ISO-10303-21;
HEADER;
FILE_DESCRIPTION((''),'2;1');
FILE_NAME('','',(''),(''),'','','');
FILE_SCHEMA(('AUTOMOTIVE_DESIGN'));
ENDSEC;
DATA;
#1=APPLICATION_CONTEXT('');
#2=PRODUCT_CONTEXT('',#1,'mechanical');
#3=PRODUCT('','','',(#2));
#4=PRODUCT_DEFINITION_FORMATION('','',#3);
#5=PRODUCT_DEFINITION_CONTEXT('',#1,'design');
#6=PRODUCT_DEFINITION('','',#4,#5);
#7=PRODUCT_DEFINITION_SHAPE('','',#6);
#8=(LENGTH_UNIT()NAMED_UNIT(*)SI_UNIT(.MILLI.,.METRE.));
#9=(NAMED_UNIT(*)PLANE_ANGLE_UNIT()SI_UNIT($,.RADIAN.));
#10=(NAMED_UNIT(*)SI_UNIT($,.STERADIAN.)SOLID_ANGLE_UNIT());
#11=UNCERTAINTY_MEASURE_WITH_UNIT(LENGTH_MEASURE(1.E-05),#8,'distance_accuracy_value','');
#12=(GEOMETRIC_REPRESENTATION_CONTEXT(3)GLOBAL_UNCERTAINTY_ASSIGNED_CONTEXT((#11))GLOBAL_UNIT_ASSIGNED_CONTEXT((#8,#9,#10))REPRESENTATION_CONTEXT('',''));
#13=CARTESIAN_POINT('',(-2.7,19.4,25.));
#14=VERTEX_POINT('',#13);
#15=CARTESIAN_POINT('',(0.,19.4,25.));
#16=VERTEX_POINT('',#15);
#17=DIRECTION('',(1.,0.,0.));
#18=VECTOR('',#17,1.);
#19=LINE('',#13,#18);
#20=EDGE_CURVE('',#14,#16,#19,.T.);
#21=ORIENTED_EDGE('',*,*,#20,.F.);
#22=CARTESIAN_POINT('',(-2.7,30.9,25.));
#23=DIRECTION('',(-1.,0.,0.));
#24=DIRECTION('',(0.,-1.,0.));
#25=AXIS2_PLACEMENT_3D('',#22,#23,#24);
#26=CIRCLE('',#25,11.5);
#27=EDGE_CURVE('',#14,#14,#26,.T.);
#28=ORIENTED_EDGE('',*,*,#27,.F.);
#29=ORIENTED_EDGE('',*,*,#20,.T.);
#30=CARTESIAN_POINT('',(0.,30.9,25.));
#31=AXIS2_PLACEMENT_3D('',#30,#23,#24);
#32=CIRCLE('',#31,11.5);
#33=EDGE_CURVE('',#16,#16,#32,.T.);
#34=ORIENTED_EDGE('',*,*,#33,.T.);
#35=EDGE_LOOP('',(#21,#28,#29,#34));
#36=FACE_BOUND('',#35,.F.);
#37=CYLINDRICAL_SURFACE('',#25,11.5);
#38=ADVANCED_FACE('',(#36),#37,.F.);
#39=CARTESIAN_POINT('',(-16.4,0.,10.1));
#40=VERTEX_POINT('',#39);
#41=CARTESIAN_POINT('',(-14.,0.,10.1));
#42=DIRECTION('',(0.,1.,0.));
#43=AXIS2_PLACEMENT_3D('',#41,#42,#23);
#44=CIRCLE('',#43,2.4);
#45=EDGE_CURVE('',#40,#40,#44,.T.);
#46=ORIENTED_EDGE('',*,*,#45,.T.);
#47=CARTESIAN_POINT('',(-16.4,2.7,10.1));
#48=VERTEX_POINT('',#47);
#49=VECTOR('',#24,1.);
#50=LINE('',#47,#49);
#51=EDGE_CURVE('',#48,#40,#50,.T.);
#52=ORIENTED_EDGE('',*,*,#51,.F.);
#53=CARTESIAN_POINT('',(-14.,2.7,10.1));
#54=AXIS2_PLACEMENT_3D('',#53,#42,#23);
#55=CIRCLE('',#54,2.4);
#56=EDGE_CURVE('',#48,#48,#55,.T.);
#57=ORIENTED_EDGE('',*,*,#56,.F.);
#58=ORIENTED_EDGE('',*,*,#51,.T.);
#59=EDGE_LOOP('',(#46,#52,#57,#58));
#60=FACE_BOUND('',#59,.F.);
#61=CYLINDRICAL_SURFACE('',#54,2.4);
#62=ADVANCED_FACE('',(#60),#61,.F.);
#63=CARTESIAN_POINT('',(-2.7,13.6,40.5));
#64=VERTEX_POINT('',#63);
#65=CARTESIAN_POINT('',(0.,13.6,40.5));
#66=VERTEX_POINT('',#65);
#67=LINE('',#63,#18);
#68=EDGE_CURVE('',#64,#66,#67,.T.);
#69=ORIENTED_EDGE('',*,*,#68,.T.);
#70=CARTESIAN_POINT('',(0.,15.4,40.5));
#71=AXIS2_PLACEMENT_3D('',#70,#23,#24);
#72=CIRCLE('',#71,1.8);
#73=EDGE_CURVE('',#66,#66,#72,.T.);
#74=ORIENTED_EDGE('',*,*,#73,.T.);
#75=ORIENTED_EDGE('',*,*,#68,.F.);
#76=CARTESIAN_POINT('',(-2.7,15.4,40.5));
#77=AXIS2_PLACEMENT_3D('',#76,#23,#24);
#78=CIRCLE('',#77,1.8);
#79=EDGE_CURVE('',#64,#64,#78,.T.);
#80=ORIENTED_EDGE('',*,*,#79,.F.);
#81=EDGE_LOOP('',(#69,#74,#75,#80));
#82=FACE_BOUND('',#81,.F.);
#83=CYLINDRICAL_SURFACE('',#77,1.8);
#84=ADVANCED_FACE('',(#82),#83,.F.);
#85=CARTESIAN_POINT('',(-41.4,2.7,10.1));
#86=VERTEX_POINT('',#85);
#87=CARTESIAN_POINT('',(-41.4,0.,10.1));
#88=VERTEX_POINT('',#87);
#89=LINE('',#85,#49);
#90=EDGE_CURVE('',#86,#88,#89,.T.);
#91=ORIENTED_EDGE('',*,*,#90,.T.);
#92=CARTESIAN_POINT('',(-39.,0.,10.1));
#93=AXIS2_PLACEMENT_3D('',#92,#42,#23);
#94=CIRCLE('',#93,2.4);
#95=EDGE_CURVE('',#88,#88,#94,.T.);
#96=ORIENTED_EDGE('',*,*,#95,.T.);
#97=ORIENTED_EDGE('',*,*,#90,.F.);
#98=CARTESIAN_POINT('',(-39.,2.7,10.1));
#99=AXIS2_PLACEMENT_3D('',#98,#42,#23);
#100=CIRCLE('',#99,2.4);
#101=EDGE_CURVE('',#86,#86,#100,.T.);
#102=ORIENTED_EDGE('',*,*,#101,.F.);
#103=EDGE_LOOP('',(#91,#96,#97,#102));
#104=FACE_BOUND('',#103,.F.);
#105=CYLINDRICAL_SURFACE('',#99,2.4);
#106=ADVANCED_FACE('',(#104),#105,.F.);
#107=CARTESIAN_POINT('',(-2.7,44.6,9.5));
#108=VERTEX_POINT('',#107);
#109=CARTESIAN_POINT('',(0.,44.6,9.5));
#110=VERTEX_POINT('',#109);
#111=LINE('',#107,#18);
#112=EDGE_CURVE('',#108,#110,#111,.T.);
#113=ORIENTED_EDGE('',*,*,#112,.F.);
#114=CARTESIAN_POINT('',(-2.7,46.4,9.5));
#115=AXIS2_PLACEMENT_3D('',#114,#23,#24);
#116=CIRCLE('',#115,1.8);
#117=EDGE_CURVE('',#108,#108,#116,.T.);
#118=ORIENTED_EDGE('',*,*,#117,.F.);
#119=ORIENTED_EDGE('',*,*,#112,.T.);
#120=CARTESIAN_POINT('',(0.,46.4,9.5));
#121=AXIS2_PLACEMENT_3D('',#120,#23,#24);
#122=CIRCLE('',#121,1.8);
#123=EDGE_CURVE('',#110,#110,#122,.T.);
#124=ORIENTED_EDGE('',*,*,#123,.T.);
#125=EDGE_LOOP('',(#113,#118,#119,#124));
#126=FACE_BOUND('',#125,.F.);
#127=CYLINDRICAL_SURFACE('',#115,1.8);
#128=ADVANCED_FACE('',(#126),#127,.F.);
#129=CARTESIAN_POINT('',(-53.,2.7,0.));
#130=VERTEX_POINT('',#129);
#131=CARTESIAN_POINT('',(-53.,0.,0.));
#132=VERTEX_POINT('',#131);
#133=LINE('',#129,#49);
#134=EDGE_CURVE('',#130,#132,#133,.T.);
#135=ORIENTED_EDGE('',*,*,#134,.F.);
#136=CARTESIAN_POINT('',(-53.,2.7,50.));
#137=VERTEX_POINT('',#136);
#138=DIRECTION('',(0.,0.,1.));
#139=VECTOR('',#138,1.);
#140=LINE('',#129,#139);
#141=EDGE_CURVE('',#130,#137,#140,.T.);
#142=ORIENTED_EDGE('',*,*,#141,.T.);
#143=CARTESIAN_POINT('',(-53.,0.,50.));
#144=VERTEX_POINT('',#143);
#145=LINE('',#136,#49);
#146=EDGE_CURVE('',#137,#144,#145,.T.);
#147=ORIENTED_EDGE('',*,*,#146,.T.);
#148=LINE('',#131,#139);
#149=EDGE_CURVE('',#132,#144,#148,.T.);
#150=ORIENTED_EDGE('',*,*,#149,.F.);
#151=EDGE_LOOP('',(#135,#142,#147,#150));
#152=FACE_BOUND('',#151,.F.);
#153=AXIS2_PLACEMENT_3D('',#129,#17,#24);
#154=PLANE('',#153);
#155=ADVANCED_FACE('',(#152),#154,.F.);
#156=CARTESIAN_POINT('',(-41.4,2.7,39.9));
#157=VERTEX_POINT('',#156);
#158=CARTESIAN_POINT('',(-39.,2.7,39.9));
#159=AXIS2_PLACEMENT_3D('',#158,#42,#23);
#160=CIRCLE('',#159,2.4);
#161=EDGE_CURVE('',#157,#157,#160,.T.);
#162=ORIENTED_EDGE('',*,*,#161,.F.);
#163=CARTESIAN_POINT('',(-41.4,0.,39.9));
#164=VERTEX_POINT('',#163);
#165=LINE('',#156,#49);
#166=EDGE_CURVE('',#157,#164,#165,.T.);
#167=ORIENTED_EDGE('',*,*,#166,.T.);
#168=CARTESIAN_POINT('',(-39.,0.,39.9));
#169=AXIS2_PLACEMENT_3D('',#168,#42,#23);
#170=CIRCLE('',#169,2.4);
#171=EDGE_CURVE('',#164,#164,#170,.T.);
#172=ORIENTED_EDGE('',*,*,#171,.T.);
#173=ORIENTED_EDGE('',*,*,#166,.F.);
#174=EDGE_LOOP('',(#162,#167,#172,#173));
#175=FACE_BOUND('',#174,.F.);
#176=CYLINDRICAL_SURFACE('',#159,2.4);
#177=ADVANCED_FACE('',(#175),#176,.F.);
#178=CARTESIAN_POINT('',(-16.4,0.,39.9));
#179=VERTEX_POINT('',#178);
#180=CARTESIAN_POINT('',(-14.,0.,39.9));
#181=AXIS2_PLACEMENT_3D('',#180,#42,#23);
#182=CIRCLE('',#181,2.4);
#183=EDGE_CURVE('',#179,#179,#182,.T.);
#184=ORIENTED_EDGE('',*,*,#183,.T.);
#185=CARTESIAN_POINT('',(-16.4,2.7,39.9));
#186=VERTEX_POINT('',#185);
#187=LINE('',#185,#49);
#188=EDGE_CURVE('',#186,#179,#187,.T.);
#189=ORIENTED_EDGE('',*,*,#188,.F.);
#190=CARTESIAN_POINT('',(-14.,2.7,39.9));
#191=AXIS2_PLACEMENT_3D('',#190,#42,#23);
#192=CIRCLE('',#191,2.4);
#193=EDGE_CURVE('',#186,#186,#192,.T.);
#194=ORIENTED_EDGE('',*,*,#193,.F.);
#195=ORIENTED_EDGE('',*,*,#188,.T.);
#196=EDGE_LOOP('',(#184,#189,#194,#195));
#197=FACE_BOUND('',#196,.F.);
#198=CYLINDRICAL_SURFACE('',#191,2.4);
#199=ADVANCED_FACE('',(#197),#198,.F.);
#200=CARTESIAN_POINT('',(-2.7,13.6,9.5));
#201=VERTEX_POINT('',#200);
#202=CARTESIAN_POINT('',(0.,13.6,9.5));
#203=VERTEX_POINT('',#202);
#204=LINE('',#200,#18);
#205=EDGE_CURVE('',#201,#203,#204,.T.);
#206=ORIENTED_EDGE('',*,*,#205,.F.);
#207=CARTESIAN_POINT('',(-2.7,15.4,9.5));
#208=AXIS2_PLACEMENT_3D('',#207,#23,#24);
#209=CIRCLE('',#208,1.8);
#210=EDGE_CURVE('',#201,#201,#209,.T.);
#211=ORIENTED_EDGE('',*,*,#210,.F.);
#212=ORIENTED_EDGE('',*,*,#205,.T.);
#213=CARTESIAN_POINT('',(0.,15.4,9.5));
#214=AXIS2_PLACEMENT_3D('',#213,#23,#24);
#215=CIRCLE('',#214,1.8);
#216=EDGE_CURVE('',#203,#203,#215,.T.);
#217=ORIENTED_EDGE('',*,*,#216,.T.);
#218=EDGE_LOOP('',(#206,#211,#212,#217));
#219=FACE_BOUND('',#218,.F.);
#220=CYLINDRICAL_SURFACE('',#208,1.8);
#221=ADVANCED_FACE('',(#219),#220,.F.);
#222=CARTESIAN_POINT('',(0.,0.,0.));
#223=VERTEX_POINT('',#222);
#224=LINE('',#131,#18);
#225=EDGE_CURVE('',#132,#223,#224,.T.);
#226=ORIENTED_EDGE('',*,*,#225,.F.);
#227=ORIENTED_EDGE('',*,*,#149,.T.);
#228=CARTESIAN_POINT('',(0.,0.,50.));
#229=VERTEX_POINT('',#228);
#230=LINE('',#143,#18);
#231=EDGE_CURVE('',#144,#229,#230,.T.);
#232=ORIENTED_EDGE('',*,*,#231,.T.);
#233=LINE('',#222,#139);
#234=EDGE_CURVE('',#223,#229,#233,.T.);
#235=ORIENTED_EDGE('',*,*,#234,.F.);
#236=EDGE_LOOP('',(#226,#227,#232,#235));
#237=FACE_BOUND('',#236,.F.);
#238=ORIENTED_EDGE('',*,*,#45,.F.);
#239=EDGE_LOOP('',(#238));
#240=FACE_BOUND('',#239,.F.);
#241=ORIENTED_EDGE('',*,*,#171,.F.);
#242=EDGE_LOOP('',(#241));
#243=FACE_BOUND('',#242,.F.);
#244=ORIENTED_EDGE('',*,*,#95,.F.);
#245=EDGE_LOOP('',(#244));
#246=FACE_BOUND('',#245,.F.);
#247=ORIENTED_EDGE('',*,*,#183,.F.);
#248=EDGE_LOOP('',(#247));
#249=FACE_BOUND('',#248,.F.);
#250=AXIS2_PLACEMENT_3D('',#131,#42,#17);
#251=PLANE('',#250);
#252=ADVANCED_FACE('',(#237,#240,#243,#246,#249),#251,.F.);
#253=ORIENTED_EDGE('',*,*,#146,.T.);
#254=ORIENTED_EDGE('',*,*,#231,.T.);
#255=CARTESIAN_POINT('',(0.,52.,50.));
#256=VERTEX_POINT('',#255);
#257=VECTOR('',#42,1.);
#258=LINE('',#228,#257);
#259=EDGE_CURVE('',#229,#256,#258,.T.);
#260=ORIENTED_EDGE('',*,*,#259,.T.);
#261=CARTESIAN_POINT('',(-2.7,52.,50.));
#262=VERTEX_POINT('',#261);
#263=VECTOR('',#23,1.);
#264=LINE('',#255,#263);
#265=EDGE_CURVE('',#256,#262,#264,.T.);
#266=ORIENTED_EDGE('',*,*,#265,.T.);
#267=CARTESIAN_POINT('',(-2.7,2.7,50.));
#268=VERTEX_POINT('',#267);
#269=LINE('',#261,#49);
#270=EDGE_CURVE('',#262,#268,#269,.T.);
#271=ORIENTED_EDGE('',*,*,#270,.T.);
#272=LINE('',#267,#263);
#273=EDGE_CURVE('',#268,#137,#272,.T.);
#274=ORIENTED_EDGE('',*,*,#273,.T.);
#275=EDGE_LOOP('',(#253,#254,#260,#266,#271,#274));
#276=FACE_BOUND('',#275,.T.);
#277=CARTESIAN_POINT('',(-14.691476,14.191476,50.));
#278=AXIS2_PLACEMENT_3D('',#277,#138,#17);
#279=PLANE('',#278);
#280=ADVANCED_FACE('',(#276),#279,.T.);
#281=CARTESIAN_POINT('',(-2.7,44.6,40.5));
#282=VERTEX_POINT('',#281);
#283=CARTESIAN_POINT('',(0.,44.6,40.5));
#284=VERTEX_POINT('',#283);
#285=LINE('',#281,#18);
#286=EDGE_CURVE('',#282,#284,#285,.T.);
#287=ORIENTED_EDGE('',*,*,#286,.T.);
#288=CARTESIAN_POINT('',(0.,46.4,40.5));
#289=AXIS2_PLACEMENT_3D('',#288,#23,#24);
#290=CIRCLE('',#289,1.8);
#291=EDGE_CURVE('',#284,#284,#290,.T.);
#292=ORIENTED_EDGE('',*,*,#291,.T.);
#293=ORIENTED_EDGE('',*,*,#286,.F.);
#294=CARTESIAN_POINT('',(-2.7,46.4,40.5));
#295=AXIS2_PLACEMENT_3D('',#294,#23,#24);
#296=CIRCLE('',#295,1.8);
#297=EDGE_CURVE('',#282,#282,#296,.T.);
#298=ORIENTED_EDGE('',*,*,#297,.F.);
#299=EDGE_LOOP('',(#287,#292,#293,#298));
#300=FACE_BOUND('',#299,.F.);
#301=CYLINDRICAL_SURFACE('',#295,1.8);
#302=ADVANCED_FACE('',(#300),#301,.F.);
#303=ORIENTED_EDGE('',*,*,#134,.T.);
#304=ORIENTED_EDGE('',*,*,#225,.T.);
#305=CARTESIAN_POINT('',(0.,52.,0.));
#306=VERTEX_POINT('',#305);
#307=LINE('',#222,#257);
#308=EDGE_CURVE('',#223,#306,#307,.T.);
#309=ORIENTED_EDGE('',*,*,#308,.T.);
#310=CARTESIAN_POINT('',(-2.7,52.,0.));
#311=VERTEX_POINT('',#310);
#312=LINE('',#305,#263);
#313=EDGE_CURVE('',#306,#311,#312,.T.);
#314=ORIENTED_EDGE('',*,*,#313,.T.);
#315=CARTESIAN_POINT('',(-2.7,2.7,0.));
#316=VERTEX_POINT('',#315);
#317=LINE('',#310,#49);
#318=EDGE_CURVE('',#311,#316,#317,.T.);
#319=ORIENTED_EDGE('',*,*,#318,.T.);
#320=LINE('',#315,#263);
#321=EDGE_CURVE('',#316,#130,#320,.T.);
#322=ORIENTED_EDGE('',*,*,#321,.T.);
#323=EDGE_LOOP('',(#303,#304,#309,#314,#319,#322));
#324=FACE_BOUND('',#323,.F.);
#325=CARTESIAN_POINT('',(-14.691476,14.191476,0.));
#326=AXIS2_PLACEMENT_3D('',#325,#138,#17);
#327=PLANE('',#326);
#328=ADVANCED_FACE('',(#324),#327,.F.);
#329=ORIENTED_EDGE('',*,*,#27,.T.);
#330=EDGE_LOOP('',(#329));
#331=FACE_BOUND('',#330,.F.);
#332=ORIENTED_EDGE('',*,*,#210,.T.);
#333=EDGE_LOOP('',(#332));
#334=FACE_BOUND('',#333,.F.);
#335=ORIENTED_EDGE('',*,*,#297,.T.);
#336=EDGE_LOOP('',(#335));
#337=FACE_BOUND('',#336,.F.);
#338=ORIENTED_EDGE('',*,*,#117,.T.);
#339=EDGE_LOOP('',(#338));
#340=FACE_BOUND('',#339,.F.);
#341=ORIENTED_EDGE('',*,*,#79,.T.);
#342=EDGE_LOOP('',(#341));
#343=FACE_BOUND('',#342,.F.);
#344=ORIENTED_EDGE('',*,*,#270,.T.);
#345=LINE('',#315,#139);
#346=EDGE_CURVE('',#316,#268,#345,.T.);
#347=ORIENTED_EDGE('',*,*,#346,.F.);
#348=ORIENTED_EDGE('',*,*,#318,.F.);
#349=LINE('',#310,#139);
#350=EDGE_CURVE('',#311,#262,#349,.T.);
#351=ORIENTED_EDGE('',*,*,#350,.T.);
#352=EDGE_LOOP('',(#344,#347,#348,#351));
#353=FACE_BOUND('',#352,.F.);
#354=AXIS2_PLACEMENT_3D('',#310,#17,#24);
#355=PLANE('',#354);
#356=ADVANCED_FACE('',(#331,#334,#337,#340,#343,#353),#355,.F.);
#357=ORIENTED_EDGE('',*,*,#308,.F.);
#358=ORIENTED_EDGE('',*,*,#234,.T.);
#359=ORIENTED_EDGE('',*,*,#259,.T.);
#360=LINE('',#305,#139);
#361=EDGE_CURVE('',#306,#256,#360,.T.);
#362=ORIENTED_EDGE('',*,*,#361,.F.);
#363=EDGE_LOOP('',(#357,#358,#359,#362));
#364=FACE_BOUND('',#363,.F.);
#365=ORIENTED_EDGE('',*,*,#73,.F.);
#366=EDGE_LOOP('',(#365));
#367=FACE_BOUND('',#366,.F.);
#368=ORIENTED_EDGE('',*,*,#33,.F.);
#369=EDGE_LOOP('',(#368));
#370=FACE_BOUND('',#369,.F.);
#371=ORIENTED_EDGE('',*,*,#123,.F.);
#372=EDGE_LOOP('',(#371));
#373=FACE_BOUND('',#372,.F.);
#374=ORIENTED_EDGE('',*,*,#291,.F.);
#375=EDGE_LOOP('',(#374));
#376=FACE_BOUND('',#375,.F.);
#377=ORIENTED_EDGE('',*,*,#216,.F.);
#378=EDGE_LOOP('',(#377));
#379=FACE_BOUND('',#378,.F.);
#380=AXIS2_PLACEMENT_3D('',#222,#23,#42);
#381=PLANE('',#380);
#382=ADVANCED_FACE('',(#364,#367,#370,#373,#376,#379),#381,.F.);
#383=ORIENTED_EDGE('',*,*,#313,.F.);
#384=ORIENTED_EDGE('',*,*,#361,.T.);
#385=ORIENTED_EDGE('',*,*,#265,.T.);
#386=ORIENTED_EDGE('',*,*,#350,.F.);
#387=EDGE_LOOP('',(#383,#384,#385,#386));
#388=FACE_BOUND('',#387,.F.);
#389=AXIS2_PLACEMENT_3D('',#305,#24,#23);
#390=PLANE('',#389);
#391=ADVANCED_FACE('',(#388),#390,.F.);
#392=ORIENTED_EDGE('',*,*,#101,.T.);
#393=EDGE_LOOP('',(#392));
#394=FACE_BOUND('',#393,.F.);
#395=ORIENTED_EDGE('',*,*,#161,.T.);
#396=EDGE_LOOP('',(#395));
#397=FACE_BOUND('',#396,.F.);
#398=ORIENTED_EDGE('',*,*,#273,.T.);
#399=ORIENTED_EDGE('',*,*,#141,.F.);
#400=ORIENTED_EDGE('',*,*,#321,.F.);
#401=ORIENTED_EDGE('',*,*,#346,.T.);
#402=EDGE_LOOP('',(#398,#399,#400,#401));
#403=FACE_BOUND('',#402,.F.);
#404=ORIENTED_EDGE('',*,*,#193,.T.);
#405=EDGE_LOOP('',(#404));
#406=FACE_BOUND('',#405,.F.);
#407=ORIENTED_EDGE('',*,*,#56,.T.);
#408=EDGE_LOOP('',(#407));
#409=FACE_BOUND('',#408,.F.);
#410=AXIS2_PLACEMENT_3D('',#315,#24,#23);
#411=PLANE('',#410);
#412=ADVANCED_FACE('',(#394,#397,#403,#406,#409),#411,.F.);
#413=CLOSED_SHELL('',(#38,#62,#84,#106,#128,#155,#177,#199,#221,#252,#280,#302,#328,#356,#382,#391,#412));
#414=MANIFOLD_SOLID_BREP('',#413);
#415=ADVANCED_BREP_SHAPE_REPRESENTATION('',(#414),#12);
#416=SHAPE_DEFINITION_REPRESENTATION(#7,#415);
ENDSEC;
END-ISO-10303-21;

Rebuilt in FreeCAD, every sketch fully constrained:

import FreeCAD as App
import Part
import Sketcher
Q = App.Units.Quantity


def add_polygon(sketch, points):
    """Adds a closed chain of lines whose ends are joined by coincident constraints."""
    first, n = sketch.GeometryCount, len(points)
    for a, b in zip(points, points[1:] + points[:1]):
        sketch.addGeometry(Part.LineSegment(App.Vector(*a, 0), App.Vector(*b, 0)), False)
    for i in range(n):
        sketch.addConstraint(Sketcher.Constraint("Coincident", first + i, 2, first + (i + 1) % n, 1))

doc = App.newDocument("Part")
body = doc.addObject("PartDesign::Body", "Body")

sketch1 = body.newObject("Sketcher::SketchObject", "Sketch")
sketch1.AttachmentSupport = (doc.getObject("XY_Plane"), [""])
sketch1.MapMode = "FlatFace"
add_polygon(sketch1, [(-2.7, 2.7), (-53, 2.7), (-53, 0), (0, 0), (0, 52), (-2.7, 52)])
sketch1.addConstraint([
    Sketcher.Constraint("Horizontal", 0),
    Sketcher.Constraint("Vertical", 1),
    Sketcher.Constraint("Horizontal", 2),
    Sketcher.Constraint("Vertical", 3),
    Sketcher.Constraint("Horizontal", 4),
    Sketcher.Constraint("Vertical", 5),
    Sketcher.Constraint("Coincident", 2, 2, -1, 1),
    Sketcher.Constraint("Equal", 4, 1),
    Sketcher.Constraint("DistanceX", 2, 1, 2, 2, Q("53 mm")),
    Sketcher.Constraint("DistanceY", 3, 1, 3, 2, Q("52 mm")),
    Sketcher.Constraint("DistanceX", 0, 2, 0, 1, Q("50.3 mm")),
])
pad1 = body.newObject("PartDesign::Pad", "Pad")
pad1.Profile = sketch1
pad1.Length = 50

sketch2 = body.newObject("Sketcher::SketchObject", "Sketch001")
sketch2.AttachmentSupport = (doc.getObject("YZ_Plane"), [""])
sketch2.MapMode = "FlatFace"
sketch2.AttachmentOffset = App.Placement(App.Vector(0, 0, -2.7), App.Rotation())
sketch2.addGeometry([
    Part.Circle(App.Vector(30.9, 25, 0), App.Vector(0, 0, 1), 11.5),
    Part.Circle(App.Vector(46.4, 40.5, 0), App.Vector(0, 0, 1), 1.8),
    Part.Circle(App.Vector(15.4, 40.5, 0), App.Vector(0, 0, 1), 1.8),
    Part.Circle(App.Vector(15.4, 9.5, 0), App.Vector(0, 0, 1), 1.8),
    Part.Circle(App.Vector(46.4, 9.5, 0), App.Vector(0, 0, 1), 1.8),
], False)
sketch2.addConstraint([
    Sketcher.Constraint("Equal", 1, 2),
    Sketcher.Constraint("Equal", 2, 3),
    Sketcher.Constraint("Equal", 3, 4),
    Sketcher.Constraint("Horizontal", 1, 3, 2, 3),
    Sketcher.Constraint("Horizontal", 3, 3, 4, 3),
    Sketcher.Constraint("Vertical", 2, 3, 3, 3),
    Sketcher.Constraint("Vertical", 1, 3, 4, 3),
    Sketcher.Constraint("Diameter", 0, Q("23 mm")),
    Sketcher.Constraint("Diameter", 1, Q("3.6 mm")),
    Sketcher.Constraint("DistanceY", -1, 1, 0, 3, Q("25 mm")),
    Sketcher.Constraint("DistanceX", 2, 3, 1, 3, Q("31 mm")),
    Sketcher.Constraint("DistanceY", 3, 3, 2, 3, Q("31 mm")),
    Sketcher.Constraint("DistanceX", -1, 1, 0, 3, Q("30.9 mm")),
    Sketcher.Constraint("DistanceX", -1, 1, 1, 3, Q("46.4 mm")),
    Sketcher.Constraint("DistanceY", -1, 1, 1, 3, Q("40.5 mm")),
])
pocket1 = body.newObject("PartDesign::Pocket", "Pocket")
pocket1.Profile = sketch2
pocket1.Length = 2.7
pocket1.Reversed = True

sketch3 = body.newObject("Sketcher::SketchObject", "Sketch002")
sketch3.AttachmentSupport = (doc.getObject("XZ_Plane"), [""])
sketch3.MapMode = "FlatFace"
sketch3.AttachmentOffset = App.Placement(App.Vector(0, 0, -2.7), App.Rotation())
sketch3.addGeometry([
    Part.Circle(App.Vector(-14, 39.9, 0), App.Vector(0, 0, 1), 2.4),
    Part.Circle(App.Vector(-39, 39.9, 0), App.Vector(0, 0, 1), 2.4),
    Part.Circle(App.Vector(-39, 10.1, 0), App.Vector(0, 0, 1), 2.4),
    Part.Circle(App.Vector(-14, 10.1, 0), App.Vector(0, 0, 1), 2.4),
], False)
sketch3.addConstraint([
    Sketcher.Constraint("Equal", 0, 1),
    Sketcher.Constraint("Equal", 1, 2),
    Sketcher.Constraint("Equal", 2, 3),
    Sketcher.Constraint("Horizontal", 0, 3, 1, 3),
    Sketcher.Constraint("Horizontal", 2, 3, 3, 3),
    Sketcher.Constraint("Vertical", 1, 3, 2, 3),
    Sketcher.Constraint("Vertical", 0, 3, 3, 3),
    Sketcher.Constraint("Diameter", 0, Q("4.8 mm")),
    Sketcher.Constraint("DistanceX", 0, 3, -1, 1, Q("14 mm")),
    Sketcher.Constraint("DistanceX", 1, 3, -1, 1, Q("39 mm")),
    Sketcher.Constraint("DistanceY", -1, 1, 0, 3, Q("39.9 mm")),
    Sketcher.Constraint("DistanceY", -1, 1, 2, 3, Q("10.1 mm")),
])
pocket2 = body.newObject("PartDesign::Pocket", "Pocket001")
pocket2.Profile = sketch3
pocket2.Length = 5
pocket2.Reversed = True

doc.recompute()
